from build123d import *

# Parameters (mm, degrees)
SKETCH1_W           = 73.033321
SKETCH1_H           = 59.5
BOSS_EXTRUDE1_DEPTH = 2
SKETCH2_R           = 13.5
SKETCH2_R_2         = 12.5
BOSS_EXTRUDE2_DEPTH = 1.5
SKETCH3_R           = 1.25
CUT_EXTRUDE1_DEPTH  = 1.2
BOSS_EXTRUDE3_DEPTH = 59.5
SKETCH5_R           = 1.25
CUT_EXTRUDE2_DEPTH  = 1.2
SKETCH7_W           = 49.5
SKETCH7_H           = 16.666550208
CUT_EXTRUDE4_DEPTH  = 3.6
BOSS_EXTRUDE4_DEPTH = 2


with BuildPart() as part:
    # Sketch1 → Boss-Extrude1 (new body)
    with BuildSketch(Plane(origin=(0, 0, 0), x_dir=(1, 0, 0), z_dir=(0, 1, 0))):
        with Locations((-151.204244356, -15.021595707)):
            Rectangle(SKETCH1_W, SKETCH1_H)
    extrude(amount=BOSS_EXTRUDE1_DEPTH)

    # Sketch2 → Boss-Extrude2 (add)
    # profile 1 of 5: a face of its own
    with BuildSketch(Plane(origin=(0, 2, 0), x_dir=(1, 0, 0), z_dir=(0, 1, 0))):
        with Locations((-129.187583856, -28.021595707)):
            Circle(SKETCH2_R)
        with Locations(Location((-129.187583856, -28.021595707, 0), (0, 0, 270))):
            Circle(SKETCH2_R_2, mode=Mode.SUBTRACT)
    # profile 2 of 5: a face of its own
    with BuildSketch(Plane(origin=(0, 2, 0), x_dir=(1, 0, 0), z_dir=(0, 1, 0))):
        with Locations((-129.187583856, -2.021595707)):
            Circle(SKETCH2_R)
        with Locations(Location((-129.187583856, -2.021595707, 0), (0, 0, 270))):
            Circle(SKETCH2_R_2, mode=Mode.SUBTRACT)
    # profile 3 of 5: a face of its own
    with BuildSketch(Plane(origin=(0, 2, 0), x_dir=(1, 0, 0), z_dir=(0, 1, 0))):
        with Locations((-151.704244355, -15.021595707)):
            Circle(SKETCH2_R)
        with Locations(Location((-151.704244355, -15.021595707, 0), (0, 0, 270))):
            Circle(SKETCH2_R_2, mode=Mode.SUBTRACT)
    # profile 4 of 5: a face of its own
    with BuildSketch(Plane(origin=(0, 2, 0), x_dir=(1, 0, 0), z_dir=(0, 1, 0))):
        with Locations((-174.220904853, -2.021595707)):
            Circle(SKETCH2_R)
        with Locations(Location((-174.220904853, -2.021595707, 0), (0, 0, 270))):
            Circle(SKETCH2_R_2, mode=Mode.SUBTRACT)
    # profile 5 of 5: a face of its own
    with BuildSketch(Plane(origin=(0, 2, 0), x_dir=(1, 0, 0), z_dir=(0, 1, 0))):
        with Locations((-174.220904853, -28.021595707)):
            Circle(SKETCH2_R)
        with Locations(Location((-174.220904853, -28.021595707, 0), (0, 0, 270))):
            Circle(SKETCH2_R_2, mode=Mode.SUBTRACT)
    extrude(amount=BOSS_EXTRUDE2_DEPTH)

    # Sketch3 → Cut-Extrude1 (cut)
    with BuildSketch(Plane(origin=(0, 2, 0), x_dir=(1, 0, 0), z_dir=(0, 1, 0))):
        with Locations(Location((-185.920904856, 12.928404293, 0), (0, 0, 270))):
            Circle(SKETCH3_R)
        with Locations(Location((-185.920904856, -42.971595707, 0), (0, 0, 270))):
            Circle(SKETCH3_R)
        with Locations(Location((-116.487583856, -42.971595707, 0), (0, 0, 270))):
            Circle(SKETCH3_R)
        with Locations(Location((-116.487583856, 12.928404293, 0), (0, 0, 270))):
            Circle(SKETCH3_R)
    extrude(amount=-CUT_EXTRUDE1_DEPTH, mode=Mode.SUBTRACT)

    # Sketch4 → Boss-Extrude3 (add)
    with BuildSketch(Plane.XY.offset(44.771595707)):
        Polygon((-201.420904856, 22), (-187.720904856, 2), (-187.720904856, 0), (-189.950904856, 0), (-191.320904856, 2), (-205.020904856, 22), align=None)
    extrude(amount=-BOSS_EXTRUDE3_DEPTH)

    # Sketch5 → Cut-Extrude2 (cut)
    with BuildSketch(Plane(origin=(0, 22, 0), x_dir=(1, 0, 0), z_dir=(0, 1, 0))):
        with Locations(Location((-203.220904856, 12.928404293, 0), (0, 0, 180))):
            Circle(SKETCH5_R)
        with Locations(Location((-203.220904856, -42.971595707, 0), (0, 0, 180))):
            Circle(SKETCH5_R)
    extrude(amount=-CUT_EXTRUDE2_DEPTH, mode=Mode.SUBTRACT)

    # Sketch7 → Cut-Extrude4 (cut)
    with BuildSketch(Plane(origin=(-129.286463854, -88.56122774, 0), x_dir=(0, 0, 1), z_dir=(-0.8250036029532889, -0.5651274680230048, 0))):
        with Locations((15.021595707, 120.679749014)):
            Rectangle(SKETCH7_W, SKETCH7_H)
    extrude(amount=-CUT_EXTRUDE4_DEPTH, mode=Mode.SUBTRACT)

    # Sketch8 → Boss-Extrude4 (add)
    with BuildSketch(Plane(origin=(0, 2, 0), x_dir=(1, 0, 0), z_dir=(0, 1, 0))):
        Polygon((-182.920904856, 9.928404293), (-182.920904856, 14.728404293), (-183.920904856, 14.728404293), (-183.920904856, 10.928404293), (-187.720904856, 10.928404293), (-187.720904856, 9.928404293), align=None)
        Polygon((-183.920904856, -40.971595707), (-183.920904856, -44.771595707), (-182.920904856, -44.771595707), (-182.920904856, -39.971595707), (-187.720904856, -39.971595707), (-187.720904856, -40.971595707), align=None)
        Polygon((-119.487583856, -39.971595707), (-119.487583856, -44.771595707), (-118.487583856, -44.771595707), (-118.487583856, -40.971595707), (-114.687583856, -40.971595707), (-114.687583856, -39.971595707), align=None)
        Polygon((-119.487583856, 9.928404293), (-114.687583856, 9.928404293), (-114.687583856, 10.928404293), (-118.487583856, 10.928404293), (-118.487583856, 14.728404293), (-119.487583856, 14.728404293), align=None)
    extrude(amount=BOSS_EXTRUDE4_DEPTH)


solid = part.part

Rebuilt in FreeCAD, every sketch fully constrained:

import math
import FreeCAD as App
import Part
import Sketcher
Q = App.Units.Quantity

doc = App.newDocument("Part")
params = doc.addObject("Spreadsheet::Sheet", "Params")
for row, (alias, value) in enumerate([
    ("sketch1_height", "59.5 mm"),
    ("pad1_length", "2 mm"),
    ("sketch2_diameter", "25 mm"),
    ("sketch2_radius", "13.5 mm"),
    ("pad2_length", "1.5 mm"),
    ("sketch3_diameter", "2.5 mm"),
    ("pocket1_length", "1.2 mm"),
    ("sketch4_height", "2 mm"),
    ("sketch4_width", "3.6 mm"),
    ("sketch4_width2", "2.23 mm"),
    ("pad3_length", "59.5 mm"),
    ("sketch5_diameter", "2.5 mm"),
    ("pocket2_length", "1.2 mm"),
    ("sketch6_width", "49.5 mm"),
    ("pocket3_length", "3.6 mm"),
    ("sketch7_width", "1 mm"),
    ("sketch7_width2", "3.8 mm"),
    ("pad4_length", "2 mm"),
], start=1):
    params.set(f"A{row}", alias)
    params.set(f"B{row}", "=" + value)
    params.setAlias(f"B{row}", alias)

body = doc.addObject("PartDesign::Body", "Body")

# Sketch on XZ plane
sketch1 = doc.addObject("Sketcher::SketchObject", "Sketch")
body.addObject(sketch1)
sketch1.AttachmentSupport = (doc.XZ_Plane, [""])
sketch1.MapMode = "FlatFace"
sketch1.addGeometry([
    Part.LineSegment(App.Vector(-188, -15, 0), App.Vector(-188, 45, 0)),
    Part.LineSegment(App.Vector(-188, 45, 0), App.Vector(-115, 45, 0)),
    Part.LineSegment(App.Vector(-115, 45, 0), App.Vector(-115, -15, 0)),
    Part.LineSegment(App.Vector(-115, -15, 0), App.Vector(-188, -15, 0)),
], False)
sketch1.addConstraint([
    Sketcher.Constraint("Coincident", 0, 2, 1, 1),
    Sketcher.Constraint("Coincident", 1, 2, 2, 1),
    Sketcher.Constraint("Coincident", 2, 2, 3, 1),
    Sketcher.Constraint("Coincident", 3, 2, 0, 1),
    Sketcher.Constraint("Vertical", 0),
    Sketcher.Constraint("Horizontal", 1),
    Sketcher.Constraint("Vertical", 2),
    Sketcher.Constraint("Horizontal", 3),
    Sketcher.Constraint("DistanceY", 0, 1, 0, 2, Q("59.5 mm")),
    Sketcher.Constraint("DistanceX", 1, 1, 1, 2, Q("73.033321 mm")),
    Sketcher.Constraint("DistanceX", 0, 2, -1, 1, Q("187.720905 mm")),
    Sketcher.Constraint("DistanceY", -1, 1, 0, 2, Q("44.771596 mm")),
])
sketch1.setExpression("Constraints[8]", "Params.sketch1_height")
pad1 = doc.addObject("PartDesign::Pad", "Pad")
body.addObject(pad1)
pad1.Profile = sketch1
pad1.setExpression("Length", "Params.pad1_length")
pad1.Reversed = True

# Sketch on XZ plane
sketch2 = doc.addObject("Sketcher::SketchObject", "Sketch001")
body.addObject(sketch2)
sketch2.AttachmentSupport = (doc.XZ_Plane, [""])
sketch2.MapMode = "FlatFace"
sketch2.AttachmentOffset = App.Placement(App.Vector(0, 0, -2), App.Rotation())
sketch2.addGeometry([
    Part.ArcOfCircle(Part.Circle(App.Vector(-129, 28, 0), App.Vector(0, 0, 1), 14), math.radians(-74), math.radians(194)),  # 0
    Part.ArcOfCircle(Part.Circle(App.Vector(-129, 2, 0), App.Vector(0, 0, 1), 14), math.radians(166), math.radians(434)),  # 1
    Part.ArcOfCircle(Part.Circle(App.Vector(-152, 15, 0), App.Vector(0, 0, 1), 14), math.radians(-134), math.radians(-46)),  # 2
    Part.ArcOfCircle(Part.Circle(App.Vector(-174, 2, 0), App.Vector(0, 0, 1), 14), math.radians(106), math.radians(374)),  # 3
    Part.ArcOfCircle(Part.Circle(App.Vector(-174, 28, 0), App.Vector(0, 0, 1), 14), math.radians(-14), math.radians(254)),  # 4
    Part.ArcOfCircle(Part.Circle(App.Vector(-152, 15, 0), App.Vector(0, 0, 1), 14), math.radians(46), math.radians(134)),  # 5
    Part.Circle(App.Vector(-129, 28, 0), App.Vector(0, 0, 1), 12),  # 6
    Part.Circle(App.Vector(-152, 15, 0), App.Vector(0, 0, 1), 12),  # 7
    Part.ArcOfCircle(Part.Circle(App.Vector(-152, 15, 0), App.Vector(0, 0, 1), 14), math.radians(-14), math.radians(14)),  # 8
    Part.ArcOfCircle(Part.Circle(App.Vector(-129, 2, 0), App.Vector(0, 0, 1), 14), math.radians(106), math.radians(134)),  # 9
    Part.ArcOfCircle(Part.Circle(App.Vector(-129, 28, 0), App.Vector(0, 0, 1), 14), math.radians(-134), math.radians(-106)),  # 10
    Part.Circle(App.Vector(-129, 2, 0), App.Vector(0, 0, 1), 12),  # 11
    Part.ArcOfCircle(Part.Circle(App.Vector(-152, 15, 0), App.Vector(0, 0, 1), 14), math.radians(166), math.radians(194)),  # 12
    Part.ArcOfCircle(Part.Circle(App.Vector(-174, 28, 0), App.Vector(0, 0, 1), 14), math.radians(-74), math.radians(-46)),  # 13
    Part.ArcOfCircle(Part.Circle(App.Vector(-174, 2, 0), App.Vector(0, 0, 1), 14), math.radians(46), math.radians(74)),  # 14
    Part.Circle(App.Vector(-174, 28, 0), App.Vector(0, 0, 1), 12),  # 15
    Part.Circle(App.Vector(-174, 2, 0), App.Vector(0, 0, 1), 12),  # 16
], False)
sketch2.addConstraint([
    Sketcher.Constraint("Coincident", 0, 1, 1, 2),
    Sketcher.Constraint("Coincident", 1, 1, 2, 2),
    Sketcher.Constraint("Coincident", 2, 1, 3, 2),
    Sketcher.Constraint("Coincident", 3, 1, 4, 2),
    Sketcher.Constraint("Coincident", 4, 1, 5, 2),
    Sketcher.Constraint("Coincident", 5, 1, 0, 2),
    Sketcher.Constraint("Coincident", 8, 1, 9, 2),
    Sketcher.Constraint("Coincident", 9, 1, 10, 2),
    Sketcher.Constraint("Coincident", 10, 1, 8, 2),
    Sketcher.Constraint("Coincident", 12, 1, 13, 2),
    Sketcher.Constraint("Coincident", 13, 1, 14, 2),
    Sketcher.Constraint("Coincident", 14, 1, 12, 2),
    Sketcher.Constraint("Coincident", 5, 3, 2, 3),
    Sketcher.Constraint("Coincident", 6, 3, 0, 3),
    Sketcher.Constraint("Coincident", 7, 3, 2, 3),
    Sketcher.Constraint("Coincident", 8, 3, 2, 3),
    Sketcher.Constraint("Coincident", 9, 3, 1, 3),
    Sketcher.Constraint("Coincident", 10, 3, 0, 3),
    Sketcher.Constraint("Coincident", 11, 3, 1, 3),
    Sketcher.Constraint("Coincident", 12, 3, 2, 3),
    Sketcher.Constraint("Coincident", 13, 3, 4, 3),
    Sketcher.Constraint("Coincident", 14, 3, 3, 3),
    Sketcher.Constraint("Coincident", 15, 3, 4, 3),
    Sketcher.Constraint("Coincident", 16, 3, 3, 3),
    Sketcher.Constraint("Equal", 0, 1),
    Sketcher.Constraint("Equal", 1, 2),
    Sketcher.Constraint("Equal", 2, 3),
    Sketcher.Constraint("Equal", 3, 4),
    Sketcher.Constraint("Equal", 4, 5),
    Sketcher.Constraint("Equal", 6, 7),
    Sketcher.Constraint("Equal", 5, 8),
    Sketcher.Constraint("Equal", 8, 9),
    Sketcher.Constraint("Equal", 9, 10),
    Sketcher.Constraint("Equal", 7, 11),
    Sketcher.Constraint("Equal", 10, 12),
    Sketcher.Constraint("Equal", 12, 13),
    Sketcher.Constraint("Equal", 13, 14),
    Sketcher.Constraint("Equal", 11, 15),
    Sketcher.Constraint("Equal", 15, 16),
    Sketcher.Constraint("Horizontal", 1, 3, 3, 3),
    Sketcher.Constraint("Horizontal", 0, 3, 4, 3),
    Sketcher.Constraint("Horizontal", 12, 3, 0, 1),
    Sketcher.Constraint("Horizontal", 1, 1, 2, 1),
    Sketcher.Constraint("Horizontal", 0, 1, 3, 1),
    Sketcher.Constraint("Horizontal", 3, 1, 9, 1),
    Sketcher.Constraint("Diameter", 6, Q("25 mm")),
    Sketcher.Constraint("Radius", 0, Q("13.5 mm")),
    Sketcher.Constraint("DistanceY", 1, 3, 0, 3, Q("26 mm")),
    Sketcher.Constraint("DistanceX", 0, 1, -1, 1, Q("125.547529 mm")),
    Sketcher.Constraint("DistanceX", 1, 1, -1, 1, Q("142.265942 mm")),
    Sketcher.Constraint("DistanceY", -1, 1, 0, 3, Q("28.021596 mm")),
])
sketch2.setExpression("Constraints[45]", "Params.sketch2_diameter")
sketch2.setExpression("Constraints[46]", "Params.sketch2_radius")
pad2 = doc.addObject("PartDesign::Pad", "Pad001")
body.addObject(pad2)
pad2.Profile = sketch2
pad2.setExpression("Length", "Params.pad2_length")
pad2.Reversed = True

# Sketch on XZ plane
sketch3 = doc.addObject("Sketcher::SketchObject", "Sketch002")
body.addObject(sketch3)
sketch3.AttachmentSupport = (doc.XZ_Plane, [""])
sketch3.MapMode = "FlatFace"
sketch3.AttachmentOffset = App.Placement(App.Vector(0, 0, -2), App.Rotation())
sketch3.addGeometry([
    Part.Circle(App.Vector(-185.9, -12.9, 0), App.Vector(0, 0, 1), 1.2),
    Part.Circle(App.Vector(-185.9, 43, 0), App.Vector(0, 0, 1), 1.2),
    Part.Circle(App.Vector(-116.5, 43, 0), App.Vector(0, 0, 1), 1.2),
    Part.Circle(App.Vector(-116.5, -12.9, 0), App.Vector(0, 0, 1), 1.2),
], False)
sketch3.addConstraint([
    Sketcher.Constraint("Equal", 0, 1),
    Sketcher.Constraint("Equal", 1, 2),
    Sketcher.Constraint("Equal", 2, 3),
    Sketcher.Constraint("Horizontal", 1, 3, 2, 3),
    Sketcher.Constraint("Horizontal", 0, 3, 3, 3),
    Sketcher.Constraint("Vertical", 0, 3, 1, 3),
    Sketcher.Constraint("Vertical", 2, 3, 3, 3),
    Sketcher.Constraint("Diameter", 0, Q("2.5 mm")),
    Sketcher.Constraint("DistanceY", 0, 3, 1, 3, Q("55.9 mm")),
    Sketcher.Constraint("DistanceX", 1, 3, 2, 3, Q("69.433321 mm")),
    Sketcher.Constraint("DistanceX", 0, 3, -1, 1, Q("185.920905 mm")),
    Sketcher.Constraint("DistanceY", 0, 3, -1, 1, Q("12.928404 mm")),
])
sketch3.setExpression("Constraints[7]", "Params.sketch3_diameter")
pocket1 = doc.addObject("PartDesign::Pocket", "Pocket")
body.addObject(pocket1)
pocket1.Profile = sketch3
pocket1.setExpression("Length", "Params.pocket1_length")
pocket1.Reversed = True

# Sketch on XY plane
sketch4 = doc.addObject("Sketcher::SketchObject", "Sketch003")
body.addObject(sketch4)
sketch4.AttachmentSupport = (doc.XY_Plane, [""])
sketch4.MapMode = "FlatFace"
sketch4.AttachmentOffset = App.Placement(App.Vector(0, 0, 44.771596), App.Rotation())
sketch4.addGeometry([
    Part.LineSegment(App.Vector(-187.7, 2, 0), App.Vector(-201.4, 22, 0)),  # 0
    Part.LineSegment(App.Vector(-201.4, 22, 0), App.Vector(-205, 22, 0)),  # 1
    Part.LineSegment(App.Vector(-205, 22, 0), App.Vector(-190, 0, 0)),  # 2
    Part.LineSegment(App.Vector(-190, 0, 0), App.Vector(-187.7, 0, 0)),  # 3
    Part.LineSegment(App.Vector(-187.7, 0, 0), App.Vector(-187.7, 2, 0)),  # 4
], False)
sketch4.addConstraint([
    Sketcher.Constraint("Coincident", 0, 2, 1, 1),
    Sketcher.Constraint("Coincident", 1, 2, 2, 1),
    Sketcher.Constraint("Coincident", 2, 2, 3, 1),
    Sketcher.Constraint("Coincident", 3, 2, 4, 1),
    Sketcher.Constraint("Coincident", 4, 2, 0, 1),
    Sketcher.Constraint("Horizontal", 1),
    Sketcher.Constraint("Horizontal", 3),
    Sketcher.Constraint("Vertical", 4),
    Sketcher.Constraint("PointOnObject", 2, 2, -1),
    Sketcher.Constraint("Parallel", 0, 2),
    Sketcher.Constraint("DistanceY", 4, 1, 4, 2, Q("2 mm")),
    Sketcher.Constraint("DistanceX", 1, 2, 1, 1, Q("3.6 mm")),
    Sketcher.Constraint("DistanceY", -1, 1, 0, 2, Q("22 mm")),
    Sketcher.Constraint("DistanceX", 3, 1, 3, 2, Q("2.23 mm")),
    Sketcher.Constraint("DistanceX", 0, 2, -1, 1, Q("201.420905 mm")),
])
sketch4.setExpression("Constraints[10]", "Params.sketch4_height")
sketch4.setExpression("Constraints[11]", "Params.sketch4_width")
sketch4.setExpression("Constraints[13]", "Params.sketch4_width2")
pad3 = doc.addObject("PartDesign::Pad", "Pad002")
body.addObject(pad3)
pad3.Profile = sketch4
pad3.setExpression("Length", "Params.pad3_length")
pad3.Reversed = True

# Sketch on XZ plane
sketch5 = doc.addObject("Sketcher::SketchObject", "Sketch004")
body.addObject(sketch5)
sketch5.AttachmentSupport = (doc.XZ_Plane, [""])
sketch5.MapMode = "FlatFace"
sketch5.AttachmentOffset = App.Placement(App.Vector(0, 0, -22), App.Rotation())
sketch5.addGeometry([
    Part.Circle(App.Vector(-203.2, -12.9, 0), App.Vector(0, 0, 1), 1.2),
    Part.Circle(App.Vector(-203.2, 43, 0), App.Vector(0, 0, 1), 1.2),
], False)
sketch5.addConstraint([
    Sketcher.Constraint("Equal", 0, 1),
    Sketcher.Constraint("Vertical", 0, 3, 1, 3),
    Sketcher.Constraint("Diameter", 0, Q("2.5 mm")),
    Sketcher.Constraint("DistanceY", 0, 3, 1, 3, Q("55.9 mm")),
    Sketcher.Constraint("DistanceX", 0, 3, -1, 1, Q("203.220905 mm")),
    Sketcher.Constraint("DistanceY", 0, 3, -1, 1, Q("12.928404 mm")),
])
sketch5.setExpression("Constraints[2]", "Params.sketch5_diameter")
pocket2 = doc.addObject("PartDesign::Pocket", "Pocket001")
body.addObject(pocket2)
pocket2.Profile = sketch5
pocket2.setExpression("Length", "Params.pocket2_length")
pocket2.Reversed = True

# Sketch on an angled plane
sketch6 = doc.addObject("Sketcher::SketchObject", "Sketch005")
body.addObject(sketch6)
sketch6.Placement = App.Placement(App.Vector(-129.286464, -88.561228, 0), App.Rotation(App.Vector(0, 0, 1), App.Vector(-0.565127468, 0.825003603, 0), App.Vector(-0.825003603, -0.565127468, 0), "ZXY"))
sketch6.addGeometry([
    Part.LineSegment(App.Vector(-10, 129, 0), App.Vector(-10, 112, 0)),
    Part.LineSegment(App.Vector(-10, 112, 0), App.Vector(40, 112, 0)),
    Part.LineSegment(App.Vector(40, 112, 0), App.Vector(40, 129, 0)),
    Part.LineSegment(App.Vector(40, 129, 0), App.Vector(-10, 129, 0)),
], False)
sketch6.addConstraint([
    Sketcher.Constraint("Coincident", 0, 2, 1, 1),
    Sketcher.Constraint("Coincident", 1, 2, 2, 1),
    Sketcher.Constraint("Coincident", 2, 2, 3, 1),
    Sketcher.Constraint("Coincident", 3, 2, 0, 1),
    Sketcher.Constraint("Vertical", 0),
    Sketcher.Constraint("Horizontal", 1),
    Sketcher.Constraint("Vertical", 2),
    Sketcher.Constraint("Horizontal", 3),
    Sketcher.Constraint("DistanceX", 1, 1, 1, 2, Q("49.5 mm")),
    Sketcher.Constraint("DistanceY", 0, 2, 0, 1, Q("16.66655 mm")),
    Sketcher.Constraint("DistanceX", 0, 2, -1, 1, Q("9.728404 mm")),
    Sketcher.Constraint("DistanceY", -1, 1, 0, 2, Q("112.346474 mm")),
])
sketch6.setExpression("Constraints[8]", "Params.sketch6_width")
pocket3 = doc.addObject("PartDesign::Pocket", "Pocket002")
body.addObject(pocket3)
pocket3.Profile = sketch6
pocket3.setExpression("Length", "Params.pocket3_length")

# Sketch on XZ plane
sketch7 = doc.addObject("Sketcher::SketchObject", "Sketch006")
body.addObject(sketch7)
sketch7.AttachmentSupport = (doc.XZ_Plane, [""])
sketch7.MapMode = "FlatFace"
sketch7.AttachmentOffset = App.Placement(App.Vector(0, 0, -2), App.Rotation())
sketch7.addGeometry([
    Part.LineSegment(App.Vector(-182.9, -9.9, 0), App.Vector(-182.9, -14.7, 0)),  # 0
    Part.LineSegment(App.Vector(-182.9, -14.7, 0), App.Vector(-183.9, -14.7, 0)),  # 1
    Part.LineSegment(App.Vector(-183.9, -14.7, 0), App.Vector(-183.9, -10.9, 0)),  # 2
    Part.LineSegment(App.Vector(-183.9, -10.9, 0), App.Vector(-187.7, -10.9, 0)),  # 3
    Part.LineSegment(App.Vector(-187.7, -10.9, 0), App.Vector(-187.7, -9.9, 0)),  # 4
    Part.LineSegment(App.Vector(-187.7, -9.9, 0), App.Vector(-182.9, -9.9, 0)),  # 5
    Part.LineSegment(App.Vector(-183.9, 41, 0), App.Vector(-183.9, 44.8, 0)),  # 6
    Part.LineSegment(App.Vector(-183.9, 44.8, 0), App.Vector(-182.9, 44.8, 0)),  # 7
    Part.LineSegment(App.Vector(-182.9, 44.8, 0), App.Vector(-182.9, 40, 0)),  # 8
    Part.LineSegment(App.Vector(-182.9, 40, 0), App.Vector(-187.7, 40, 0)),  # 9
    Part.LineSegment(App.Vector(-187.7, 40, 0), App.Vector(-187.7, 41, 0)),  # 10
    Part.LineSegment(App.Vector(-187.7, 41, 0), App.Vector(-183.9, 41, 0)),  # 11
    Part.LineSegment(App.Vector(-119.5, 40, 0), App.Vector(-119.5, 44.8, 0)),  # 12
    Part.LineSegment(App.Vector(-119.5, 44.8, 0), App.Vector(-118.5, 44.8, 0)),  # 13
    Part.LineSegment(App.Vector(-118.5, 44.8, 0), App.Vector(-118.5, 41, 0)),  # 14
    Part.LineSegment(App.Vector(-118.5, 41, 0), App.Vector(-114.7, 41, 0)),  # 15
    Part.LineSegment(App.Vector(-114.7, 41, 0), App.Vector(-114.7, 40, 0)),  # 16
    Part.LineSegment(App.Vector(-114.7, 40, 0), App.Vector(-119.5, 40, 0)),  # 17
    Part.LineSegment(App.Vector(-119.5, -9.9, 0), App.Vector(-114.7, -9.9, 0)),  # 18
    Part.LineSegment(App.Vector(-114.7, -9.9, 0), App.Vector(-114.7, -10.9, 0)),  # 19
    Part.LineSegment(App.Vector(-114.7, -10.9, 0), App.Vector(-118.5, -10.9, 0)),  # 20
    Part.LineSegment(App.Vector(-118.5, -10.9, 0), App.Vector(-118.5, -14.7, 0)),  # 21
    Part.LineSegment(App.Vector(-118.5, -14.7, 0), App.Vector(-119.5, -14.7, 0)),  # 22
    Part.LineSegment(App.Vector(-119.5, -14.7, 0), App.Vector(-119.5, -9.9, 0)),  # 23
], False)
sketch7.addConstraint([
    Sketcher.Constraint("Coincident", 0, 2, 1, 1),
    Sketcher.Constraint("Coincident", 1, 2, 2, 1),
    Sketcher.Constraint("Coincident", 2, 2, 3, 1),
    Sketcher.Constraint("Coincident", 3, 2, 4, 1),
    Sketcher.Constraint("Coincident", 4, 2, 5, 1),
    Sketcher.Constraint("Coincident", 5, 2, 0, 1),
    Sketcher.Constraint("Coincident", 6, 2, 7, 1),
    Sketcher.Constraint("Coincident", 7, 2, 8, 1),
    Sketcher.Constraint("Coincident", 8, 2, 9, 1),
    Sketcher.Constraint("Coincident", 9, 2, 10, 1),
    Sketcher.Constraint("Coincident", 10, 2, 11, 1),
    Sketcher.Constraint("Coincident", 11, 2, 6, 1),
    Sketcher.Constraint("Coincident", 12, 2, 13, 1),
    Sketcher.Constraint("Coincident", 13, 2, 14, 1),
    Sketcher.Constraint("Coincident", 14, 2, 15, 1),
    Sketcher.Constraint("Coincident", 15, 2, 16, 1),
    Sketcher.Constraint("Coincident", 16, 2, 17, 1),
    Sketcher.Constraint("Coincident", 17, 2, 12, 1),
    Sketcher.Constraint("Coincident", 18, 2, 19, 1),
    Sketcher.Constraint("Coincident", 19, 2, 20, 1),
    Sketcher.Constraint("Coincident", 20, 2, 21, 1),
    Sketcher.Constraint("Coincident", 21, 2, 22, 1),
    Sketcher.Constraint("Coincident", 22, 2, 23, 1),
    Sketcher.Constraint("Coincident", 23, 2, 18, 1),
    Sketcher.Constraint("Vertical", 0),
    Sketcher.Constraint("Horizontal", 1),
    Sketcher.Constraint("Vertical", 2),
    Sketcher.Constraint("Horizontal", 3),
    Sketcher.Constraint("Vertical", 4),
    Sketcher.Constraint("Horizontal", 5),
    Sketcher.Constraint("Vertical", 6),
    Sketcher.Constraint("Horizontal", 7),
    Sketcher.Constraint("Vertical", 8),
    Sketcher.Constraint("Horizontal", 9),
    Sketcher.Constraint("Vertical", 10),
    Sketcher.Constraint("Horizontal", 11),
    Sketcher.Constraint("Vertical", 12),
    Sketcher.Constraint("Horizontal", 13),
    Sketcher.Constraint("Vertical", 14),
    Sketcher.Constraint("Horizontal", 15),
    Sketcher.Constraint("Vertical", 16),
    Sketcher.Constraint("Horizontal", 17),
    Sketcher.Constraint("Horizontal", 18),
    Sketcher.Constraint("Vertical", 19),
    Sketcher.Constraint("Horizontal", 20),
    Sketcher.Constraint("Vertical", 21),
    Sketcher.Constraint("Horizontal", 22),
    Sketcher.Constraint("Vertical", 23),
    Sketcher.Constraint("Horizontal", 7, 2, 12, 2),
    Sketcher.Constraint("Horizontal", 11, 2, 14, 2),
    Sketcher.Constraint("Horizontal", 9, 2, 16, 2),
    Sketcher.Constraint("Horizontal", 5, 2, 18, 2),
    Sketcher.Constraint("Horizontal", 3, 2, 19, 2),
    Sketcher.Constraint("Horizontal", 1, 2, 21, 2),
    Sketcher.Constraint("Vertical", 2, 2, 6, 2),
    Sketcher.Constraint("Vertical", 5, 2, 7, 2),
    Sketcher.Constraint("Vertical", 4, 2, 9, 2),
    Sketcher.Constraint("Vertical", 16, 2, 18, 2),
    Sketcher.Constraint("Vertical", 14, 2, 20, 2),
    Sketcher.Constraint("Vertical", 17, 2, 22, 2),
    Sketcher.Constraint("Equal", 7, 13),
    Sketcher.Constraint("Equal", 11, 15),
    Sketcher.Constraint("Equal", 18, 0),
    Sketcher.Constraint("Equal", 20, 2),
    Sketcher.Constraint("Equal", 2, 6),
    Sketcher.Constraint("Equal", 0, 8),
    Sketcher.Constraint("DistanceX", 1, 2, 1, 1, Q("1 mm")),
    Sketcher.Constraint("DistanceX", 3, 2, 3, 1, Q("3.8 mm")),
    Sketcher.Constraint("DistanceY", 5, 2, 6, 2, Q("54.7 mm")),
    Sketcher.Constraint("DistanceX", 7, 2, 12, 2, Q("63.433321 mm")),
    Sketcher.Constraint("DistanceX", 0, 2, -1, 1, Q("182.920905 mm")),
    Sketcher.Constraint("DistanceY", 0, 2, -1, 1, Q("14.728404 mm")),
])
sketch7.setExpression("Constraints[66]", "Params.sketch7_width")
sketch7.setExpression("Constraints[67]", "Params.sketch7_width2")
pad4 = doc.addObject("PartDesign::Pad", "Pad003")
body.addObject(pad4)
pad4.Profile = sketch7
pad4.setExpression("Length", "Params.pad4_length")
pad4.Reversed = True

doc.recompute()
